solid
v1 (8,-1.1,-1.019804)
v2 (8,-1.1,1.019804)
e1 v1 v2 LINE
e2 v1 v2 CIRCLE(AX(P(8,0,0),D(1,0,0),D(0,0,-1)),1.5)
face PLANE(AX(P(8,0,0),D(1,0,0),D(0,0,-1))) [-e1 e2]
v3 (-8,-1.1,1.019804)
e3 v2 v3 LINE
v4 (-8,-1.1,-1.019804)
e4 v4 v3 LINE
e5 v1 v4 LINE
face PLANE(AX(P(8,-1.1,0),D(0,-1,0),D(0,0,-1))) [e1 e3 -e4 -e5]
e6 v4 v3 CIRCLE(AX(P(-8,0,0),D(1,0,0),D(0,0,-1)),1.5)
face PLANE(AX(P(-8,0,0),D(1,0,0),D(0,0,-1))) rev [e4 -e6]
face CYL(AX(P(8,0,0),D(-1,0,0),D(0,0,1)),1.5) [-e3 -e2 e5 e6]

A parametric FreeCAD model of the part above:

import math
import FreeCAD as App
import Part
import Sketcher

doc = App.newDocument("Part")
body = doc.addObject("PartDesign::Body", "Body")

# Sketch on YZ plane
sketch1 = body.newObject("Sketcher::SketchObject", "Sketch")
sketch1.AttachmentSupport = (doc.getObject("YZ_Plane"), [""])
sketch1.MapMode = "FlatFace"
sketch1.addGeometry(Part.LineSegment(App.Vector(-1.1, 1, 0), App.Vector(-1.1, -1, 0)), False)
sketch1.addGeometry(Part.ArcOfCircle(Part.Circle(App.Vector(0, 0, 0), App.Vector(0, 0, 1), 1.5), math.radians(-137), math.radians(-90)), False)
sketch1.addGeometry(Part.ArcOfCircle(Part.Circle(App.Vector(0, 0, 0), App.Vector(0, 0, 1), 1.5), math.radians(-90), math.radians(137)), False)
sketch1.addConstraint(Sketcher.Constraint("Coincident", 0, 2, 1, 1))
sketch1.addConstraint(Sketcher.Constraint("Tangent", 1, 2, 2, 1))
sketch1.addConstraint(Sketcher.Constraint("Coincident", 2, 2, 0, 1))
sketch1.addConstraint(Sketcher.Constraint("Vertical", 0))
sketch1.addConstraint(Sketcher.Constraint("Coincident", 1, 3, -1, 1))
sketch1.addConstraint(Sketcher.Constraint("Equal", 1, 2))
sketch1.addConstraint(Sketcher.Constraint("PointOnObject", 1, 2, -2))
sketch1.addConstraint(Sketcher.Constraint("Radius", 1, 1.5))
sketch1.addConstraint(Sketcher.Constraint("DistanceX", 0, 2, -1, 1, 1.1))
pad1 = body.newObject("PartDesign::Pad", "Pad")
pad1.Profile = sketch1
pad1.Length = 16
pad1.Midplane = True

doc.recompute()
